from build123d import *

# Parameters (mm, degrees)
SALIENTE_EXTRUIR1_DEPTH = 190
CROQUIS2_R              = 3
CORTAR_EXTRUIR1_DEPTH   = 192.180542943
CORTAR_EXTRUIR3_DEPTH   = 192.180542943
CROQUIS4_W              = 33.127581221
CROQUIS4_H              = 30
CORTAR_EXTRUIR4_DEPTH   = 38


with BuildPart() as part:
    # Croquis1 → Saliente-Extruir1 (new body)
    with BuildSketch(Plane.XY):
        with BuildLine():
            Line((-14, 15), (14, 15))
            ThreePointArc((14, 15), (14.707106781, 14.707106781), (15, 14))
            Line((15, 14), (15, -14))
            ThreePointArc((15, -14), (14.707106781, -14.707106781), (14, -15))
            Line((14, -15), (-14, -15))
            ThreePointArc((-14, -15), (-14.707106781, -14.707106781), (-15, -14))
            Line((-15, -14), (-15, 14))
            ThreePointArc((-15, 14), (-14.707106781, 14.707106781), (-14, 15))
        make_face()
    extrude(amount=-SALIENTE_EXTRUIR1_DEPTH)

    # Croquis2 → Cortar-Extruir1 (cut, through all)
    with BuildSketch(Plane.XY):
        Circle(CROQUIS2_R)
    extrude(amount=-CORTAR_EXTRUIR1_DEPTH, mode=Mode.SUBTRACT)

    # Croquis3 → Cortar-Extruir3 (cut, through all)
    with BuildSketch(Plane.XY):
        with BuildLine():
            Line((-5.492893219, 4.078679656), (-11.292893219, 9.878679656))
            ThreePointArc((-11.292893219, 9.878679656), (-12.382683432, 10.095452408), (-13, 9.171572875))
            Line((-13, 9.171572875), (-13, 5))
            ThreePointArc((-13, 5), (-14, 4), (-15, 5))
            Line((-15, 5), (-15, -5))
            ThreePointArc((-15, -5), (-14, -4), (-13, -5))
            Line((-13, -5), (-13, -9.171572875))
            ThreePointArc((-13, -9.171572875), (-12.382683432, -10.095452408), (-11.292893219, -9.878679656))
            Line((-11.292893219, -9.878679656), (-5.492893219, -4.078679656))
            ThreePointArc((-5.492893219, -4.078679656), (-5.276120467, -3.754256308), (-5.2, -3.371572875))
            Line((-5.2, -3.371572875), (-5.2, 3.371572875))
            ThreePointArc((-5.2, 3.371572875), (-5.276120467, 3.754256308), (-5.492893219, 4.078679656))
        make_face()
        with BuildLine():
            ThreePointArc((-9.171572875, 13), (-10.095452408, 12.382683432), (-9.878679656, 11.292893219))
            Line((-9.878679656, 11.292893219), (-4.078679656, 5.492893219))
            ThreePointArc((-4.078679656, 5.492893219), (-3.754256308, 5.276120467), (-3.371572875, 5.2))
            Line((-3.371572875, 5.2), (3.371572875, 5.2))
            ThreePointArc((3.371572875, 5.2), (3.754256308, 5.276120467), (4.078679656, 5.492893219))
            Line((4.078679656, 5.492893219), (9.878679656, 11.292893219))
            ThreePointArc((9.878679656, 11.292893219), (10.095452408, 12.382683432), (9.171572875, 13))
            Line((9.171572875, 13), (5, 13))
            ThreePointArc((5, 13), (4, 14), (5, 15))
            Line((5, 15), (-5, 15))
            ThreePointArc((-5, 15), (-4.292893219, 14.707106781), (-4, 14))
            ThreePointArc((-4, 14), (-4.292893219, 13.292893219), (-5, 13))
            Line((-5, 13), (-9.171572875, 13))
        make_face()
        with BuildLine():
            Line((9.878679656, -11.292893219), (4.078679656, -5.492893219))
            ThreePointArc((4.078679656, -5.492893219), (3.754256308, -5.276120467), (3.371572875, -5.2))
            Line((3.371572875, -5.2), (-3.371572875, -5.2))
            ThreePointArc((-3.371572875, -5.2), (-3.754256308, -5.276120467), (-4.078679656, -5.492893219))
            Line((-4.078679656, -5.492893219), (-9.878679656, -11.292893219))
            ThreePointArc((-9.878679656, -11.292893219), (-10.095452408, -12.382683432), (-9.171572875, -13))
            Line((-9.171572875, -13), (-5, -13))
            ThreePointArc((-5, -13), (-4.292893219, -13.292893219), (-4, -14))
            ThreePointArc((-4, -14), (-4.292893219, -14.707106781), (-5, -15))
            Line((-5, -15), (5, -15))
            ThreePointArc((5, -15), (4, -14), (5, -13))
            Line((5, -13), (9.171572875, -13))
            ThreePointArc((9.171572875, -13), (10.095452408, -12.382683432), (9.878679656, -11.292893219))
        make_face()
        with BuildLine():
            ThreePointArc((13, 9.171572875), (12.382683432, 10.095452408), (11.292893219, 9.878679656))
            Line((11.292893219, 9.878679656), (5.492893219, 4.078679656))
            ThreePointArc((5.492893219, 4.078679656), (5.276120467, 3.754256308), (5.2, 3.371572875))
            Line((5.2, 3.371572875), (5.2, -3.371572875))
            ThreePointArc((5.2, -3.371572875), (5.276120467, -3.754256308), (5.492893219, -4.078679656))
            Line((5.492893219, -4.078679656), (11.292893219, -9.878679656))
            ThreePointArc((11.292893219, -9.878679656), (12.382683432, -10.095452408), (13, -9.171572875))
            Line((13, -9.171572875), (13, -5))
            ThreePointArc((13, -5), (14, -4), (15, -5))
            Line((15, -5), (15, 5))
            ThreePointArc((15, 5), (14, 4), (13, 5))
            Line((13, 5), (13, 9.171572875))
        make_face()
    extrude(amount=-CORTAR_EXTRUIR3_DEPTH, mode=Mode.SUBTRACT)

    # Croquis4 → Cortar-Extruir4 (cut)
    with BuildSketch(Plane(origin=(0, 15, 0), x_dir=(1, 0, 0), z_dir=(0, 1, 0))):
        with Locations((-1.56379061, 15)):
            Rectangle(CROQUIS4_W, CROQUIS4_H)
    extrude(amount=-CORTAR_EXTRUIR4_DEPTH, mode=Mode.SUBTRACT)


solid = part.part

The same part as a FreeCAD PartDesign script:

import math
import FreeCAD as App
import Part
import Sketcher

V = App.Vector


def add_polygon(sketch, points):
    """Adds a closed chain of lines whose ends are joined by coincident constraints."""
    first, n = sketch.GeometryCount, len(points)
    for a, b in zip(points, points[1:] + points[:1]):
        sketch.addGeometry(Part.LineSegment(App.Vector(*a, 0), App.Vector(*b, 0)), False)
    for i in range(n):
        sketch.addConstraint(Sketcher.Constraint("Coincident", first + i, 2, first + (i + 1) % n, 1))

doc = App.newDocument("Part")
params = doc.addObject("Spreadsheet::Sheet", "Params")
for row, (alias, value) in enumerate([
    ("sketch1_radius", "1 mm"),
    ("sketch1_width", "28 mm"),
    ("pad1_length", "190 mm"),
    ("sketch2_diameter", "6 mm"),
    ("sketch3_radius", "1 mm"),
    ("sketch3_width", "10 mm"),
    ("sketch4_height", "30 mm"),
    ("pocket3_length", "38 mm"),
], start=1):
    params.set(f"A{row}", alias)
    params.set(f"B{row}", "=" + value)
    params.setAlias(f"B{row}", alias)

body = doc.addObject("PartDesign::Body", "Body")

# Sketch on XY plane
sketch1 = body.newObject("Sketcher::SketchObject", "Sketch")
sketch1.AttachmentSupport = (doc.getObject("XY_Plane"), [""])
sketch1.MapMode = "FlatFace"
sketch1.addGeometry(Part.LineSegment(V(14, 15, 0), V(-14, 15, 0)), False)
sketch1.addGeometry(Part.ArcOfCircle(Part.Circle(V(-14, 14, 0), V(0, 0, 1), 1), math.radians(90), math.radians(180)), False)
sketch1.addGeometry(Part.LineSegment(V(-15, 14, 0), V(-15, -14, 0)), False)
sketch1.addGeometry(Part.ArcOfCircle(Part.Circle(V(-14, -14, 0), V(0, 0, 1), 1), math.radians(-180), math.radians(-90)), False)
sketch1.addGeometry(Part.LineSegment(V(-14, -15, 0), V(14, -15, 0)), False)
sketch1.addGeometry(Part.ArcOfCircle(Part.Circle(V(14, -14, 0), V(0, 0, 1), 1), math.radians(-90), math.radians(0)), False)
sketch1.addGeometry(Part.LineSegment(V(15, -14, 0), V(15, 14, 0)), False)
sketch1.addGeometry(Part.ArcOfCircle(Part.Circle(V(14, 14, 0), V(0, 0, 1), 1), math.radians(0), math.radians(90)), False)
sketch1.addConstraint(Sketcher.Constraint("Tangent", 0, 2, 1, 1))
sketch1.addConstraint(Sketcher.Constraint("Tangent", 1, 2, 2, 1))
sketch1.addConstraint(Sketcher.Constraint("Tangent", 2, 2, 3, 1))
sketch1.addConstraint(Sketcher.Constraint("Tangent", 3, 2, 4, 1))
sketch1.addConstraint(Sketcher.Constraint("Tangent", 4, 2, 5, 1))
sketch1.addConstraint(Sketcher.Constraint("Tangent", 5, 2, 6, 1))
sketch1.addConstraint(Sketcher.Constraint("Tangent", 6, 2, 7, 1))
sketch1.addConstraint(Sketcher.Constraint("Tangent", 7, 2, 0, 1))
sketch1.addConstraint(Sketcher.Constraint("Horizontal", 0))
sketch1.addConstraint(Sketcher.Constraint("Vertical", 2))
sketch1.addConstraint(Sketcher.Constraint("Horizontal", 4))
sketch1.addConstraint(Sketcher.Constraint("Vertical", 6))
sketch1.addConstraint(Sketcher.Constraint("Equal", 1, 3))
sketch1.addConstraint(Sketcher.Constraint("Equal", 3, 5))
sketch1.addConstraint(Sketcher.Constraint("Equal", 5, 7))
sketch1.addConstraint(Sketcher.Constraint("Symmetric", 1, 3, 5, 3, -1, 1))
sketch1.addConstraint(Sketcher.Constraint("Equal", 4, 2))
sketch1.addConstraint(Sketcher.Constraint("Radius", 1, 1.0))
sketch1.addConstraint(Sketcher.Constraint("DistanceX", 0, 2, 0, 1, 28.0))
sketch1.setExpression("Constraints[17]", "Params.sketch1_radius")
sketch1.setExpression("Constraints[18]", "Params.sketch1_width")
pad1 = body.newObject("PartDesign::Pad", "Pad")
pad1.Profile = sketch1
pad1.setExpression("Length", "Params.pad1_length")
pad1.Reversed = True

# Sketch on XY plane
sketch2 = body.newObject("Sketcher::SketchObject", "Sketch001")
sketch2.AttachmentSupport = (doc.getObject("XY_Plane"), [""])
sketch2.MapMode = "FlatFace"
sketch2.addGeometry(Part.Circle(V(0, 0, 0), V(0, 0, 1), 3), False)
sketch2.addConstraint(Sketcher.Constraint("Coincident", 0, 3, -1, 1))
sketch2.addConstraint(Sketcher.Constraint("Diameter", 0, 6.0))
sketch2.setExpression("Constraints[1]", "Params.sketch2_diameter")
pocket1 = body.newObject("PartDesign::Pocket", "Pocket")
pocket1.Profile = sketch2
pocket1.Type = "ThroughAll"

# Sketch on XY plane
sketch3 = body.newObject("Sketcher::SketchObject", "Sketch002")
sketch3.AttachmentSupport = (doc.getObject("XY_Plane"), [""])
sketch3.MapMode = "FlatFace"
sketch3.addGeometry(Part.LineSegment(V(-5.5, 4.1, 0), V(-11.3, 9.9, 0)), False)
sketch3.addGeometry(Part.ArcOfCircle(Part.Circle(V(-12, 9.2, 0), V(0, 0, 1), 1), math.radians(45), math.radians(180)), False)
sketch3.addGeometry(Part.LineSegment(V(-13, 9.2, 0), V(-13, 5, 0)), False)
sketch3.addGeometry(Part.ArcOfCircle(Part.Circle(V(-14, 5, 0), V(0, 0, 1), 1), math.radians(180), math.radians(360)), False)
sketch3.addGeometry(Part.LineSegment(V(-15, 5, 0), V(-15, -5, 0)), False)
sketch3.addGeometry(Part.ArcOfCircle(Part.Circle(V(-14, -5, 0), V(0, 0, 1), 1), math.radians(0), math.radians(180)), False)
sketch3.addGeometry(Part.LineSegment(V(-13, -5, 0), V(-13, -9.2, 0)), False)
sketch3.addGeometry(Part.ArcOfCircle(Part.Circle(V(-12, -9.2, 0), V(0, 0, 1), 1), math.radians(180), math.radians(315)), False)
sketch3.addGeometry(Part.LineSegment(V(-11.3, -9.9, 0), V(-5.5, -4.1, 0)), False)
sketch3.addGeometry(Part.ArcOfCircle(Part.Circle(V(-6.2, -3.4, 0), V(0, 0, 1), 1), math.radians(-45), math.radians(0)), False)
sketch3.addGeometry(Part.LineSegment(V(-5.2, -3.4, 0), V(-5.2, 3.4, 0)), False)
sketch3.addGeometry(Part.ArcOfCircle(Part.Circle(V(-6.2, 3.4, 0), V(0, 0, 1), 1), math.radians(0), math.radians(45)), False)
sketch3.addGeometry(Part.ArcOfCircle(Part.Circle(V(-9.2, 12, 0), V(0, 0, 1), 1), math.radians(90), math.radians(225)), False)
sketch3.addGeometry(Part.LineSegment(V(-9.9, 11.3, 0), V(-4.1, 5.5, 0)), False)
sketch3.addGeometry(Part.ArcOfCircle(Part.Circle(V(-3.4, 6.2, 0), V(0, 0, 1), 1), math.radians(-135), math.radians(-90)), False)
sketch3.addGeometry(Part.LineSegment(V(-3.4, 5.2, 0), V(3.4, 5.2, 0)), False)
sketch3.addGeometry(Part.ArcOfCircle(Part.Circle(V(3.4, 6.2, 0), V(0, 0, 1), 1), math.radians(-90), math.radians(-45)), False)
sketch3.addGeometry(Part.LineSegment(V(4.1, 5.5, 0), V(9.9, 11.3, 0)), False)
sketch3.addGeometry(Part.ArcOfCircle(Part.Circle(V(9.2, 12, 0), V(0, 0, 1), 1), math.radians(-45), math.radians(90)), False)
sketch3.addGeometry(Part.LineSegment(V(9.2, 13, 0), V(5, 13, 0)), False)
sketch3.addGeometry(Part.ArcOfCircle(Part.Circle(V(5, 14, 0), V(0, 0, 1), 1), math.radians(90), math.radians(270)), False)
sketch3.addGeometry(Part.LineSegment(V(5, 15, 0), V(-5, 15, 0)), False)
sketch3.addGeometry(Part.ArcOfCircle(Part.Circle(V(-5, 14, 0), V(0, 0, 1), 1), math.radians(0), math.radians(90)), False)
sketch3.addGeometry(Part.ArcOfCircle(Part.Circle(V(-5, 14, 0), V(0, 0, 1), 1), math.radians(-90), math.radians(0)), False)
sketch3.addGeometry(Part.LineSegment(V(-5, 13, 0), V(-9.2, 13, 0)), False)
sketch3.addGeometry(Part.LineSegment(V(9.9, -11.3, 0), V(4.1, -5.5, 0)), False)
sketch3.addGeometry(Part.ArcOfCircle(Part.Circle(V(3.4, -6.2, 0), V(0, 0, 1), 1), math.radians(45), math.radians(90)), False)
sketch3.addGeometry(Part.LineSegment(V(3.4, -5.2, 0), V(-3.4, -5.2, 0)), False)
sketch3.addGeometry(Part.ArcOfCircle(Part.Circle(V(-3.4, -6.2, 0), V(0, 0, 1), 1), math.radians(90), math.radians(135)), False)
sketch3.addGeometry(Part.LineSegment(V(-4.1, -5.5, 0), V(-9.9, -11.3, 0)), False)
sketch3.addGeometry(Part.ArcOfCircle(Part.Circle(V(-9.2, -12, 0), V(0, 0, 1), 1), math.radians(135), math.radians(270)), False)
sketch3.addGeometry(Part.LineSegment(V(-9.2, -13, 0), V(-5, -13, 0)), False)
sketch3.addGeometry(Part.ArcOfCircle(Part.Circle(V(-5, -14, 0), V(0, 0, 1), 1), math.radians(0), math.radians(90)), False)
sketch3.addGeometry(Part.ArcOfCircle(Part.Circle(V(-5, -14, 0), V(0, 0, 1), 1), math.radians(-90), math.radians(0)), False)
sketch3.addGeometry(Part.LineSegment(V(-5, -15, 0), V(5, -15, 0)), False)
sketch3.addGeometry(Part.ArcOfCircle(Part.Circle(V(5, -14, 0), V(0, 0, 1), 1), math.radians(90), math.radians(270)), False)
sketch3.addGeometry(Part.LineSegment(V(5, -13, 0), V(9.2, -13, 0)), False)
sketch3.addGeometry(Part.ArcOfCircle(Part.Circle(V(9.2, -12, 0), V(0, 0, 1), 1), math.radians(-90), math.radians(45)), False)
sketch3.addGeometry(Part.ArcOfCircle(Part.Circle(V(12, 9.2, 0), V(0, 0, 1), 1), math.radians(0), math.radians(135)), False)
sketch3.addGeometry(Part.LineSegment(V(11.3, 9.9, 0), V(5.5, 4.1, 0)), False)
sketch3.addGeometry(Part.ArcOfCircle(Part.Circle(V(6.2, 3.4, 0), V(0, 0, 1), 1), math.radians(135), math.radians(180)), False)
sketch3.addGeometry(Part.LineSegment(V(5.2, 3.4, 0), V(5.2, -3.4, 0)), False)
sketch3.addGeometry(Part.ArcOfCircle(Part.Circle(V(6.2, -3.4, 0), V(0, 0, 1), 1), math.radians(180), math.radians(225)), False)
sketch3.addGeometry(Part.LineSegment(V(5.5, -4.1, 0), V(11.3, -9.9, 0)), False)
sketch3.addGeometry(Part.ArcOfCircle(Part.Circle(V(12, -9.2, 0), V(0, 0, 1), 1), math.radians(-135), math.radians(0)), False)
sketch3.addGeometry(Part.LineSegment(V(13, -9.2, 0), V(13, -5, 0)), False)
sketch3.addGeometry(Part.ArcOfCircle(Part.Circle(V(14, -5, 0), V(0, 0, 1), 1), math.radians(0), math.radians(180)), False)
sketch3.addGeometry(Part.LineSegment(V(15, -5, 0), V(15, 5, 0)), False)
sketch3.addGeometry(Part.ArcOfCircle(Part.Circle(V(14, 5, 0), V(0, 0, 1), 1), math.radians(180), math.radians(360)), False)
sketch3.addGeometry(Part.LineSegment(V(13, 5, 0), V(13, 9.2, 0)), False)
sketch3.addConstraint(Sketcher.Constraint("Tangent", 0, 2, 1, 1))
sketch3.addConstraint(Sketcher.Constraint("Tangent", 1, 2, 2, 1))
sketch3.addConstraint(Sketcher.Constraint("Tangent", 2, 2, 3, 2))
sketch3.addConstraint(Sketcher.Constraint("Tangent", 3, 1, 4, 1))
sketch3.addConstraint(Sketcher.Constraint("Tangent", 4, 2, 5, 2))
sketch3.addConstraint(Sketcher.Constraint("Tangent", 5, 1, 6, 1))
sketch3.addConstraint(Sketcher.Constraint("Tangent", 6, 2, 7, 1))
sketch3.addConstraint(Sketcher.Constraint("Tangent", 7, 2, 8, 1))
sketch3.addConstraint(Sketcher.Constraint("Tangent", 8, 2, 9, 1))
sketch3.addConstraint(Sketcher.Constraint("Tangent", 9, 2, 10, 1))
sketch3.addConstraint(Sketcher.Constraint("Tangent", 10, 2, 11, 1))
sketch3.addConstraint(Sketcher.Constraint("Tangent", 11, 2, 0, 1))
sketch3.addConstraint(Sketcher.Constraint("Tangent", 12, 2, 13, 1))
sketch3.addConstraint(Sketcher.Constraint("Tangent", 13, 2, 14, 1))
sketch3.addConstraint(Sketcher.Constraint("Tangent", 14, 2, 15, 1))
sketch3.addConstraint(Sketcher.Constraint("Tangent", 15, 2, 16, 1))
sketch3.addConstraint(Sketcher.Constraint("Tangent", 16, 2, 17, 1))
sketch3.addConstraint(Sketcher.Constraint("Tangent", 17, 2, 18, 1))
sketch3.addConstraint(Sketcher.Constraint("Tangent", 18, 2, 19, 1))
sketch3.addConstraint(Sketcher.Constraint("Tangent", 19, 2, 20, 2))
sketch3.addConstraint(Sketcher.Constraint("Tangent", 20, 1, 21, 1))
sketch3.addConstraint(Sketcher.Constraint("Tangent", 21, 2, 22, 2))
sketch3.addConstraint(Sketcher.Constraint("Tangent", 22, 1, 23, 2))
sketch3.addConstraint(Sketcher.Constraint("Tangent", 23, 1, 24, 1))
sketch3.addConstraint(Sketcher.Constraint("Tangent", 24, 2, 12, 1))
sketch3.addConstraint(Sketcher.Constraint("Tangent", 25, 2, 26, 1))
sketch3.addConstraint(Sketcher.Constraint("Tangent", 26, 2, 27, 1))
sketch3.addConstraint(Sketcher.Constraint("Tangent", 27, 2, 28, 1))
sketch3.addConstraint(Sketcher.Constraint("Tangent", 28, 2, 29, 1))
sketch3.addConstraint(Sketcher.Constraint("Tangent", 29, 2, 30, 1))
sketch3.addConstraint(Sketcher.Constraint("Tangent", 30, 2, 31, 1))
sketch3.addConstraint(Sketcher.Constraint("Tangent", 31, 2, 32, 2))
sketch3.addConstraint(Sketcher.Constraint("Tangent", 32, 1, 33, 2))
sketch3.addConstraint(Sketcher.Constraint("Tangent", 33, 1, 34, 1))
sketch3.addConstraint(Sketcher.Constraint("Tangent", 34, 2, 35, 2))
sketch3.addConstraint(Sketcher.Constraint("Tangent", 35, 1, 36, 1))
sketch3.addConstraint(Sketcher.Constraint("Tangent", 36, 2, 37, 1))
sketch3.addConstraint(Sketcher.Constraint("Tangent", 37, 2, 25, 1))
sketch3.addConstraint(Sketcher.Constraint("Tangent", 38, 2, 39, 1))
sketch3.addConstraint(Sketcher.Constraint("Tangent", 39, 2, 40, 1))
sketch3.addConstraint(Sketcher.Constraint("Tangent", 40, 2, 41, 1))
sketch3.addConstraint(Sketcher.Constraint("Tangent", 41, 2, 42, 1))
sketch3.addConstraint(Sketcher.Constraint("Tangent", 42, 2, 43, 1))
sketch3.addConstraint(Sketcher.Constraint("Tangent", 43, 2, 44, 1))
sketch3.addConstraint(Sketcher.Constraint("Tangent", 44, 2, 45, 1))
sketch3.addConstraint(Sketcher.Constraint("Tangent", 45, 2, 46, 2))
sketch3.addConstraint(Sketcher.Constraint("Tangent", 46, 1, 47, 1))
sketch3.addConstraint(Sketcher.Constraint("Tangent", 47, 2, 48, 2))
sketch3.addConstraint(Sketcher.Constraint("Tangent", 48, 1, 49, 1))
sketch3.addConstraint(Sketcher.Constraint("Tangent", 49, 2, 38, 1))
sketch3.addConstraint(Sketcher.Constraint("Vertical", 2))
sketch3.addConstraint(Sketcher.Constraint("Vertical", 4))
sketch3.addConstraint(Sketcher.Constraint("Vertical", 6))
sketch3.addConstraint(Sketcher.Constraint("Vertical", 10))
sketch3.addConstraint(Sketcher.Constraint("Horizontal", 15))
sketch3.addConstraint(Sketcher.Constraint("Horizontal", 19))
sketch3.addConstraint(Sketcher.Constraint("Horizontal", 21))
sketch3.addConstraint(Sketcher.Constraint("Horizontal", 24))
sketch3.addConstraint(Sketcher.Constraint("Horizontal", 27))
sketch3.addConstraint(Sketcher.Constraint("Horizontal", 31))
sketch3.addConstraint(Sketcher.Constraint("Horizontal", 34))
sketch3.addConstraint(Sketcher.Constraint("Horizontal", 36))
sketch3.addConstraint(Sketcher.Constraint("Vertical", 41))
sketch3.addConstraint(Sketcher.Constraint("Vertical", 45))
sketch3.addConstraint(Sketcher.Constraint("Vertical", 47))
sketch3.addConstraint(Sketcher.Constraint("Vertical", 49))
sketch3.addConstraint(Sketcher.Constraint("Equal", 1, 3))
sketch3.addConstraint(Sketcher.Constraint("Equal", 3, 5))
sketch3.addConstraint(Sketcher.Constraint("Equal", 5, 7))
sketch3.addConstraint(Sketcher.Constraint("Equal", 7, 9))
sketch3.addConstraint(Sketcher.Constraint("Equal", 9, 11))
sketch3.addConstraint(Sketcher.Constraint("Equal", 11, 12))
sketch3.addConstraint(Sketcher.Constraint("Equal", 12, 14))
sketch3.addConstraint(Sketcher.Constraint("Equal", 14, 16))
sketch3.addConstraint(Sketcher.Constraint("Equal", 16, 18))
sketch3.addConstraint(Sketcher.Constraint("Equal", 18, 20))
sketch3.addConstraint(Sketcher.Constraint("Equal", 20, 22))
sketch3.addConstraint(Sketcher.Constraint("Equal", 22, 23))
sketch3.addConstraint(Sketcher.Constraint("Equal", 23, 26))
sketch3.addConstraint(Sketcher.Constraint("Equal", 26, 28))
sketch3.addConstraint(Sketcher.Constraint("Equal", 28, 30))
sketch3.addConstraint(Sketcher.Constraint("Equal", 30, 32))
sketch3.addConstraint(Sketcher.Constraint("Equal", 32, 33))
sketch3.addConstraint(Sketcher.Constraint("Equal", 33, 35))
sketch3.addConstraint(Sketcher.Constraint("Equal", 35, 37))
sketch3.addConstraint(Sketcher.Constraint("Equal", 37, 38))
sketch3.addConstraint(Sketcher.Constraint("Equal", 38, 40))
sketch3.addConstraint(Sketcher.Constraint("Equal", 40, 42))
sketch3.addConstraint(Sketcher.Constraint("Equal", 42, 44))
sketch3.addConstraint(Sketcher.Constraint("Equal", 44, 46))
sketch3.addConstraint(Sketcher.Constraint("Equal", 46, 48))
sketch3.addConstraint(Sketcher.Constraint("Symmetric", 14, 3, 26, 3, -1, 1))
sketch3.addConstraint(Sketcher.Constraint("Symmetric", 18, 3, 30, 3, -1, 1))
sketch3.addConstraint(Sketcher.Constraint("Symmetric", 7, 3, 38, 3, -1, 1))
sketch3.addConstraint(Sketcher.Constraint("Symmetric", 9, 3, 40, 3, -1, 1))
sketch3.addConstraint(Sketcher.Constraint("Symmetric", 11, 2, 42, 2, -1, 1))
sketch3.addConstraint(Sketcher.Constraint("Symmetric", 13, 2, 16, 2, -2))
sketch3.addConstraint(Sketcher.Constraint("Symmetric", 25, 2, 28, 2, -2))
sketch3.addConstraint(Sketcher.Constraint("Symmetric", 0, 2, 38, 2, -2))
sketch3.addConstraint(Sketcher.Constraint("Symmetric", 22, 1, 32, 1, -1))
sketch3.addConstraint(Sketcher.Constraint("Perpendicular", 0, 8))
sketch3.addConstraint(Sketcher.Constraint("Perpendicular", 8, 13))
sketch3.addConstraint(Sketcher.Constraint("Horizontal", 5, 3, 46, 3))
sketch3.addConstraint(Sketcher.Constraint("Horizontal", 3, 3, 48, 3))
sketch3.addConstraint(Sketcher.Constraint("Horizontal", 23, 3, 22, 1))
sketch3.addConstraint(Sketcher.Constraint("Vertical", 20, 3, 35, 3))
sketch3.addConstraint(Sketcher.Constraint("Equal", 19, 24))
sketch3.addConstraint(Sketcher.Constraint("Equal", 36, 2))
sketch3.addConstraint(Sketcher.Constraint("Equal", 34, 4))
sketch3.addConstraint(Sketcher.Constraint("Equal", 2, 6))
sketch3.addConstraint(Sketcher.Constraint("Equal", 27, 10))
sketch3.addConstraint(Sketcher.Constraint("Radius", 1, 1.0))
sketch3.addConstraint(Sketcher.Constraint("DistanceX", 21, 2, 21, 1, 10.0))
sketch3.addConstraint(Sketcher.Constraint("DistanceX", 1, 3, -1, 1, 12.0))
sketch3.addConstraint(Sketcher.Constraint("DistanceY", -1, 1, 12, 3, 12.0))
sketch3.addConstraint(Sketcher.Constraint("DistanceX", 9, 3, -1, 1, 6.2))
sketch3.addConstraint(Sketcher.Constraint("DistanceX", 15, 1, 15, 2, 6.743146))
sketch3.setExpression("Constraints[111]", "Params.sketch3_radius")
sketch3.setExpression("Constraints[112]", "Params.sketch3_width")
pocket2 = body.newObject("PartDesign::Pocket", "Pocket001")
pocket2.Profile = sketch3
pocket2.Type = "ThroughAll"

# Sketch on XZ plane
sketch4 = body.newObject("Sketcher::SketchObject", "Sketch003")
sketch4.AttachmentSupport = (doc.getObject("XZ_Plane"), [""])
sketch4.MapMode = "FlatFace"
sketch4.AttachmentOffset = App.Placement(V(0, 0, -15), App.Rotation())
add_polygon(sketch4, [(-18, -30), (-18, 0), (15, 0), (15, -30)])  # lines 0-3
sketch4.addConstraint(Sketcher.Constraint("Vertical", 0))
sketch4.addConstraint(Sketcher.Constraint("Horizontal", 1))
sketch4.addConstraint(Sketcher.Constraint("Vertical", 2))
sketch4.addConstraint(Sketcher.Constraint("Horizontal", 3))
sketch4.addConstraint(Sketcher.Constraint("PointOnObject", 0, 2, -1))
sketch4.addConstraint(Sketcher.Constraint("DistanceY", 0, 1, 0, 2, 30.0))
sketch4.addConstraint(Sketcher.Constraint("DistanceX", -1, 1, 1, 2, 15.0))
sketch4.addConstraint(Sketcher.Constraint("DistanceX", 1, 1, 1, 2, 33.127581))
sketch4.setExpression("Constraints[9]", "Params.sketch4_height")
pocket3 = body.newObject("PartDesign::Pocket", "Pocket002")
pocket3.Profile = sketch4
pocket3.setExpression("Length", "Params.pocket3_length")
pocket3.Reversed = True

doc.recompute()
